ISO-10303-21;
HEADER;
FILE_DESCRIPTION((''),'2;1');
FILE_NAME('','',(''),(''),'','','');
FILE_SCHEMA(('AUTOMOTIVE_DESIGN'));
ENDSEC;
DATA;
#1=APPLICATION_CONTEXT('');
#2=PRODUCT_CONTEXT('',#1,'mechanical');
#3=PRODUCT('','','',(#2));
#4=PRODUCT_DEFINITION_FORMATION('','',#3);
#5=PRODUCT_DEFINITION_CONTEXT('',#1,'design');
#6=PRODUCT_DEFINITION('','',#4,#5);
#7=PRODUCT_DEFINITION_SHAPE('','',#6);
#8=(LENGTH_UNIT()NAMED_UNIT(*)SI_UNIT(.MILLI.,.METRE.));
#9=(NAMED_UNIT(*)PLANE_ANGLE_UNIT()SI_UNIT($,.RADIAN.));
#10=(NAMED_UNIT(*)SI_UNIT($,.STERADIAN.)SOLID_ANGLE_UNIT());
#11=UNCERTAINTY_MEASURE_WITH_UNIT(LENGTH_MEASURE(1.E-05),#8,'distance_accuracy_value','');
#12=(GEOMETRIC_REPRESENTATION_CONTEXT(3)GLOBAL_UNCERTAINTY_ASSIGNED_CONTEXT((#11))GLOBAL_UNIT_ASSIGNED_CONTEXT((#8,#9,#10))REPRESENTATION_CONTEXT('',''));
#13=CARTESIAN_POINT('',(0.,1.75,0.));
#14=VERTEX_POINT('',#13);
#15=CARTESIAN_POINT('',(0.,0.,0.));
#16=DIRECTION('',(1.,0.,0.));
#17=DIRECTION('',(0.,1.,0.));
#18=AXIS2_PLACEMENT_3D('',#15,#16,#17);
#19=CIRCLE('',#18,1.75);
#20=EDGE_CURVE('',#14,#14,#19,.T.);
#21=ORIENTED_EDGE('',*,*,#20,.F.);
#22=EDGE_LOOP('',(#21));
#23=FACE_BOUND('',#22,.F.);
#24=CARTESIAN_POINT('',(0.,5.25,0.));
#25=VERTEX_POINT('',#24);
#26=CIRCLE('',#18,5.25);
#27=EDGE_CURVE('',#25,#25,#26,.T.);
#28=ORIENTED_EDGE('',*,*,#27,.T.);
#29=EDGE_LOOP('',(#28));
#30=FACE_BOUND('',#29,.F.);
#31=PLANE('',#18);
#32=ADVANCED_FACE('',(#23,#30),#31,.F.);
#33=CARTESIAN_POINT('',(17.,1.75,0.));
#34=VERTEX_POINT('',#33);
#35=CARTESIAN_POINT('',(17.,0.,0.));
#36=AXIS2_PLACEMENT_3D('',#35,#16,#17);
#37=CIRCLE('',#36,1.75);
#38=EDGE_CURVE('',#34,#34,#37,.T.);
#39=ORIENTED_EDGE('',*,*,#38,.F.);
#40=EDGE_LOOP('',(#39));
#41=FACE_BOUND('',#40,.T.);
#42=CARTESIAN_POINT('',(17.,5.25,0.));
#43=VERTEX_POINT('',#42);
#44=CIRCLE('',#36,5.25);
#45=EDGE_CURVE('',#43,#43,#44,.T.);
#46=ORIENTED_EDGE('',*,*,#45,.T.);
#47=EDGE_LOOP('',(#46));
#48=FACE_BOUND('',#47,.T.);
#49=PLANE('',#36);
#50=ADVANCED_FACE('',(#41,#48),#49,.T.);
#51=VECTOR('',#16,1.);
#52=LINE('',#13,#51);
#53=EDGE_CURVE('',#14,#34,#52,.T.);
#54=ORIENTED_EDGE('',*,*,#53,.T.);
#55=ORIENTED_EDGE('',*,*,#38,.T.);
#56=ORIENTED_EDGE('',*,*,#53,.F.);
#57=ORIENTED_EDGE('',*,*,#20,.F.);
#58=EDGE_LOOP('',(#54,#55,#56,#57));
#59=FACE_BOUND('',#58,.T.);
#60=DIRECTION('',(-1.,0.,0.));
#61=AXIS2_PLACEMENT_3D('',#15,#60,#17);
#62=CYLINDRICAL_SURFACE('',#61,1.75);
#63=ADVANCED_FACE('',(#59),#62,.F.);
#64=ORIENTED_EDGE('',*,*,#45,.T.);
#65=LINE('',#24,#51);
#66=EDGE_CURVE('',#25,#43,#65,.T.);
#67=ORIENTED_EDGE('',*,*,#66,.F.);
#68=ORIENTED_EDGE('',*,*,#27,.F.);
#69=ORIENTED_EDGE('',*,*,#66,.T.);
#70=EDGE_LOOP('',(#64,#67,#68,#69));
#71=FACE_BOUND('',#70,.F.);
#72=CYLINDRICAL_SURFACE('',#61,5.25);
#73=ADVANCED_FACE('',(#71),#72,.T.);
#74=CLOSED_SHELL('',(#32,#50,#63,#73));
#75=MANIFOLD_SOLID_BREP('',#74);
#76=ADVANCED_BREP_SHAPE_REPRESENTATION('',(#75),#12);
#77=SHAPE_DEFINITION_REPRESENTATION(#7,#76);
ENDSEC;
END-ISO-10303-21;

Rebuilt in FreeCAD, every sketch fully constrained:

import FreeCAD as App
import Part
import Sketcher
Q = App.Units.Quantity

doc = App.newDocument("Part")
body = doc.addObject("PartDesign::Body", "Body")

# Sketch on YZ plane
sketch1 = body.newObject("Sketcher::SketchObject", "Sketch")
sketch1.AttachmentSupport = (doc.getObject("YZ_Plane"), [""])
sketch1.MapMode = "FlatFace"
sketch1.addGeometry([
    Part.Circle(App.Vector(0, 0, 0), App.Vector(0, 0, 1), 5.25),
    Part.Circle(App.Vector(0, 0, 0), App.Vector(0, 0, 1), 1.75),
], False)
sketch1.addConstraint([
    Sketcher.Constraint("Coincident", 0, 3, -1, 1),
    Sketcher.Constraint("Coincident", 1, 3, -1, 1),
    Sketcher.Constraint("Diameter", 0, Q("10.5 mm")),
    Sketcher.Constraint("Diameter", 1, Q("3.5 mm")),
])
pad1 = body.newObject("PartDesign::Pad", "Pad")
pad1.Profile = sketch1
pad1.Length = 17

doc.recompute()
